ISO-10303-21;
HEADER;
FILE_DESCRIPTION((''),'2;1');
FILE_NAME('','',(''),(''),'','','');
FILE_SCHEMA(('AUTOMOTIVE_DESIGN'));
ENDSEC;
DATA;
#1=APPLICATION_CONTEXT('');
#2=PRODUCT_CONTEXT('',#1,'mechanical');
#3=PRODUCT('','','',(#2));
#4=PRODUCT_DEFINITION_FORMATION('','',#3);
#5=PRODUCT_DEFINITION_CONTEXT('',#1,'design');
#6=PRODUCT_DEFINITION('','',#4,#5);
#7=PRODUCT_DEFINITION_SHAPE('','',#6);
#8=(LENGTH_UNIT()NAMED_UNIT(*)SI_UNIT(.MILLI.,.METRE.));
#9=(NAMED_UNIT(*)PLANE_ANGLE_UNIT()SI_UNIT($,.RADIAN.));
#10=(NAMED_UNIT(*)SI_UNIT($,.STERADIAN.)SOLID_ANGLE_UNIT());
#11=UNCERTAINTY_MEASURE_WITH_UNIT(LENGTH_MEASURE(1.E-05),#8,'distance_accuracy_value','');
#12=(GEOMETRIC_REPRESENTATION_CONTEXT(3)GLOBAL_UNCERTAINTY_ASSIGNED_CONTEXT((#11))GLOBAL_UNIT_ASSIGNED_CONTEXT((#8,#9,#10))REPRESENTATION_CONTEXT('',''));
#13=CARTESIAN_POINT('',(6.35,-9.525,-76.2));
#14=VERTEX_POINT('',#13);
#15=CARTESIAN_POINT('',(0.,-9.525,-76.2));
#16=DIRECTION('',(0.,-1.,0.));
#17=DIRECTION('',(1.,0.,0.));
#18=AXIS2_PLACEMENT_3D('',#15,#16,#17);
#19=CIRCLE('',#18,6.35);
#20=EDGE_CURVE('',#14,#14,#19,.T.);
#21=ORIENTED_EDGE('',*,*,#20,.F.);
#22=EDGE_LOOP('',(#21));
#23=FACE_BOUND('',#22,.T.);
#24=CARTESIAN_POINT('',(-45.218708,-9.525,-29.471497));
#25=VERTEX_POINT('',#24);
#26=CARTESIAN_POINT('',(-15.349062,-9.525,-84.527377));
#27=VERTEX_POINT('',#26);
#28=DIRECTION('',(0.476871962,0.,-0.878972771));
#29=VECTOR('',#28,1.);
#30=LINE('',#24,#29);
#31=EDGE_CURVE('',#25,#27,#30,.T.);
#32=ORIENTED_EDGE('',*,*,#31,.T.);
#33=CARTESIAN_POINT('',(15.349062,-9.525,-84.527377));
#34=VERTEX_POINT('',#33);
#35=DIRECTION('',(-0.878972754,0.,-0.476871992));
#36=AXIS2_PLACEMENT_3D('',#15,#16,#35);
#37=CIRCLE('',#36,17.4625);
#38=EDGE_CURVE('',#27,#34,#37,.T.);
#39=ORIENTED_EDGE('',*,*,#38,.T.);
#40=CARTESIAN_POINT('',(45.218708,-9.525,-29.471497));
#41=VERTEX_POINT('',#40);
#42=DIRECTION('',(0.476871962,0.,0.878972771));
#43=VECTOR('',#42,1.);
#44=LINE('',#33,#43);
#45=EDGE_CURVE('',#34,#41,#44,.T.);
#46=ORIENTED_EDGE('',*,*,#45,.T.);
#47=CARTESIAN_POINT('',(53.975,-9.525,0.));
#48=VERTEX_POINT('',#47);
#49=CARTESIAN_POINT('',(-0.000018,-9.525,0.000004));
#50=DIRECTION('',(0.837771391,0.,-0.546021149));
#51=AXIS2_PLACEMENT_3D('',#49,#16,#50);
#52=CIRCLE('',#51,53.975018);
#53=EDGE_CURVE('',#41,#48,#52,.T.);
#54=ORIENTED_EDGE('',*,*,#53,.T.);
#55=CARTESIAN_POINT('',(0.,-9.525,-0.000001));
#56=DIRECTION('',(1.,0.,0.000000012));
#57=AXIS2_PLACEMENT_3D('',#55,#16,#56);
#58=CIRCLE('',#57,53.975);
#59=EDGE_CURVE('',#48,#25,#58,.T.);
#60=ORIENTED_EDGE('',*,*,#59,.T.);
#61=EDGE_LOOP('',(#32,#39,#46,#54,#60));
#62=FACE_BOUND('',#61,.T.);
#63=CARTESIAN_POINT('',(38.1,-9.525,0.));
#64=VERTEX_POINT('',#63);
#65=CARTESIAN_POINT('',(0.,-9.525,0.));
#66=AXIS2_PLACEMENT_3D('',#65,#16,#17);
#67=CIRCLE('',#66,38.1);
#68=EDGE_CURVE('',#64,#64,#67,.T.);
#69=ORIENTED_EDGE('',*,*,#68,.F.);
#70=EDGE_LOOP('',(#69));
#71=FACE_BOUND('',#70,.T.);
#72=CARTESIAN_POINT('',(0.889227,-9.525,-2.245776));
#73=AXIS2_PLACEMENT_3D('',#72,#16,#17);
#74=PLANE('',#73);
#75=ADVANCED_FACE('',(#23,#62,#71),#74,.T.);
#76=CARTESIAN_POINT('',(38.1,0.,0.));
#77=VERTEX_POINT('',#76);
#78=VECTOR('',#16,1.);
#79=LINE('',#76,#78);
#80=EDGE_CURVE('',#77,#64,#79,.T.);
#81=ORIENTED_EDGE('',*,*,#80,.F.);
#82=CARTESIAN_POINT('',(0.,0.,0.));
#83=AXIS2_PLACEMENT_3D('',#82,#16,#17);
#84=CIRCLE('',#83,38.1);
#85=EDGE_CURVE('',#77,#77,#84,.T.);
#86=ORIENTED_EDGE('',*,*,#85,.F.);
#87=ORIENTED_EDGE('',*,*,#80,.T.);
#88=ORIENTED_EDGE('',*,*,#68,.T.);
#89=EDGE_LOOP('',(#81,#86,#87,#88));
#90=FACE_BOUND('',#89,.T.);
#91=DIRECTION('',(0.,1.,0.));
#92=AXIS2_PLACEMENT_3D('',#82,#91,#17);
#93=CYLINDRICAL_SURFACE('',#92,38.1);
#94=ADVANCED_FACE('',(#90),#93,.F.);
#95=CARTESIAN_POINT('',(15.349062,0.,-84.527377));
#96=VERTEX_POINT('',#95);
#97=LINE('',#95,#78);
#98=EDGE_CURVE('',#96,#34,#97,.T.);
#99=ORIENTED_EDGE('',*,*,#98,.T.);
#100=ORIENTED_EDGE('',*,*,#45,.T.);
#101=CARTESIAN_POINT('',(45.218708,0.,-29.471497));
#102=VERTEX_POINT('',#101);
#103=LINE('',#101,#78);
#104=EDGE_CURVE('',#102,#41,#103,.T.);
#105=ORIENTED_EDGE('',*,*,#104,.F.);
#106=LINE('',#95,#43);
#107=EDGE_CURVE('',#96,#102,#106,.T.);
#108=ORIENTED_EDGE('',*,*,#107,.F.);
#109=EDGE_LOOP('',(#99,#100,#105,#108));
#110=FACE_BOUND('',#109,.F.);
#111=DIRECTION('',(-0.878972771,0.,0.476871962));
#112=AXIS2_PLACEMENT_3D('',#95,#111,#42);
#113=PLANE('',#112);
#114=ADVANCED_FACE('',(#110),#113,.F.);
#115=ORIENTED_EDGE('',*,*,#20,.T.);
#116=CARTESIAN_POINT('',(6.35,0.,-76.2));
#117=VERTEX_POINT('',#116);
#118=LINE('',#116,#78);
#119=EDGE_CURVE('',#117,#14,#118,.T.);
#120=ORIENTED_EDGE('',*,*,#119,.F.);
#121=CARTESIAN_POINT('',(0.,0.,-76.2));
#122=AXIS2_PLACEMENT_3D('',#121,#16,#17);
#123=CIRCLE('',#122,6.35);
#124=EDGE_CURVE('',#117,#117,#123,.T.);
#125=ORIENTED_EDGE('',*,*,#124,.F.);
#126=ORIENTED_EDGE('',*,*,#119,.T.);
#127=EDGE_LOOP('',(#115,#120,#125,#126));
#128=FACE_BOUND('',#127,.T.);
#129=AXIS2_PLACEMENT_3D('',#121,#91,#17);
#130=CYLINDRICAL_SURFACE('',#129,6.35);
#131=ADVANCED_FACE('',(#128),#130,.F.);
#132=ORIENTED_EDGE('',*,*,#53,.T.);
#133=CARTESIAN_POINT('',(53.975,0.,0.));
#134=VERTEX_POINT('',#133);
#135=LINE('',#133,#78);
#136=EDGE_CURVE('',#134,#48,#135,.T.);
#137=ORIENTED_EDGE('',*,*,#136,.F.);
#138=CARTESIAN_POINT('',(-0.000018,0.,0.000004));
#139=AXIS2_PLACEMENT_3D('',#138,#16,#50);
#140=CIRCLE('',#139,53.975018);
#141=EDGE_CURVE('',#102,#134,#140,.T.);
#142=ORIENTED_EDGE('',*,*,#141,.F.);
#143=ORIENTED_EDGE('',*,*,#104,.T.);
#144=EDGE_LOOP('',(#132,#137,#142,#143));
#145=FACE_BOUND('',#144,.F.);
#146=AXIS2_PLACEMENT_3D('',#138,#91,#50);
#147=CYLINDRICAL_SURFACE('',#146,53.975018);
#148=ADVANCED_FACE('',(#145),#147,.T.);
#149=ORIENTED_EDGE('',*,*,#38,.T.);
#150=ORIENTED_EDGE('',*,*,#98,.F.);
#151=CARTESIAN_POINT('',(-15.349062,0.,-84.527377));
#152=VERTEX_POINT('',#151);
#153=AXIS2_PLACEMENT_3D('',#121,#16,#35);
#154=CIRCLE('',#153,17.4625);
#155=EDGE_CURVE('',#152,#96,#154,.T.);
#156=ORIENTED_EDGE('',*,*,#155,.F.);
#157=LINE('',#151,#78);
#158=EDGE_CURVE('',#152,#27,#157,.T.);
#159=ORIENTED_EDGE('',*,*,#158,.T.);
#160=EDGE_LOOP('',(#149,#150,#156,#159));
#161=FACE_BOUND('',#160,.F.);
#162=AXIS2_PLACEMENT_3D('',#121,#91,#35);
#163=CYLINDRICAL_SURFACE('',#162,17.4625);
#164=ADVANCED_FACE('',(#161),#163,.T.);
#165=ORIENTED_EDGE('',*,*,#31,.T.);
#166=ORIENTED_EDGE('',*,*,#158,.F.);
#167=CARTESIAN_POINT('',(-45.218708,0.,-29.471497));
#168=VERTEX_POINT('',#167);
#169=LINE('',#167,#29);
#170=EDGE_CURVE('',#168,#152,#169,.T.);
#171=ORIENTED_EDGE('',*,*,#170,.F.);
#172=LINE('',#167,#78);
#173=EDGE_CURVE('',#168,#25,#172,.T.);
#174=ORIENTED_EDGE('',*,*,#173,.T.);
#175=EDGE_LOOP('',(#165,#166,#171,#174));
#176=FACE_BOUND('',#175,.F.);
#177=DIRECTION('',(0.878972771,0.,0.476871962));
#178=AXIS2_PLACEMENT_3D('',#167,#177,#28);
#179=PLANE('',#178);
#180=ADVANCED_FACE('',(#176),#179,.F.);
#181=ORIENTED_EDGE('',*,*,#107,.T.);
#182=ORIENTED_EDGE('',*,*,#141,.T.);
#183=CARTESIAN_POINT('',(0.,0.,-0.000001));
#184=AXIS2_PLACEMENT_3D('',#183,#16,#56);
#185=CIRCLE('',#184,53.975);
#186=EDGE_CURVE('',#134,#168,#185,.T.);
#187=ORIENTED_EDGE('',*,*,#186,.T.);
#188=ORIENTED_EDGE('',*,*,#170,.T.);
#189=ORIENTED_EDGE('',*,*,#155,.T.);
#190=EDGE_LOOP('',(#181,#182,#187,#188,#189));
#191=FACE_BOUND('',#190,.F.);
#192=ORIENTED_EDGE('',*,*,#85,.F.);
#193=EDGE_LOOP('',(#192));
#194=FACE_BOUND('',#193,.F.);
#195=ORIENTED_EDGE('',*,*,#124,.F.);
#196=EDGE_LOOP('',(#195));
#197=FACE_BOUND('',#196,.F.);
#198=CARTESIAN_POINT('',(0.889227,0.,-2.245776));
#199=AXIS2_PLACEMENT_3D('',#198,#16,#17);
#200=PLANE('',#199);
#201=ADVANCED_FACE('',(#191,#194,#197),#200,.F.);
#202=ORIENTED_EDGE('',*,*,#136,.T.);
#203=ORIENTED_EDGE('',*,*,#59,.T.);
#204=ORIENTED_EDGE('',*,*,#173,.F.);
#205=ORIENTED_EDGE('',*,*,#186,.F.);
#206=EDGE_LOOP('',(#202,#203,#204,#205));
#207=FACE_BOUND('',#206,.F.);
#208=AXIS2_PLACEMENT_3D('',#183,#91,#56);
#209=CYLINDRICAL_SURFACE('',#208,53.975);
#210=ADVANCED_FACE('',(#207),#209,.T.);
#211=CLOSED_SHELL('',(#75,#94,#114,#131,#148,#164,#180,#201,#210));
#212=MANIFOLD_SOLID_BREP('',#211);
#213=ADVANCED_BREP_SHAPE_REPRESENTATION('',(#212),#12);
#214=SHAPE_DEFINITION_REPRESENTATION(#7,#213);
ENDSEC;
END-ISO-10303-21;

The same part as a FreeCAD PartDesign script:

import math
import FreeCAD as App
import Part
import Sketcher

V = App.Vector
Q = App.Units.Quantity

doc = App.newDocument("Part")
params = doc.addObject("Spreadsheet::Sheet", "Params")
for row, (alias, value) in enumerate([
    ("sketch1_diameter", "3 in"),
    ("sketch1_diameter2", "0.5 in"),
    ("sketch1_radius", "2.125 in"),
    ("sketch1_radius2", "0.6875 in"),
    ("pad1_length", "0.375 in"),
], start=1):
    params.set(f"A{row}", alias)
    params.set(f"B{row}", "=" + value)
    params.setAlias(f"B{row}", alias)

body = doc.addObject("PartDesign::Body", "Body")

sketch1 = body.newObject("Sketcher::SketchObject", "Sketch")
sketch1.AttachmentSupport = (doc.getObject("XZ_Plane"), [""])
sketch1.MapMode = "FlatFace"
sketch1.addGeometry([
    Part.ArcOfCircle(Part.Circle(V(0, 0, 0), V(0, 0, 1), 54), math.radians(-33), math.radians(0)),
    Part.ArcOfCircle(Part.Circle(V(0, 0, 0), V(0, 0, 1), 54), math.radians(0), math.radians(213)),
    Part.LineSegment(V(-45, -29, 0), V(-15, -85, 0)),
    Part.ArcOfCircle(Part.Circle(V(0, -76, 0), V(0, 0, 1), 17), math.radians(-152), math.radians(-28)),
    Part.LineSegment(V(15, -85, 0), V(45, -29, 0)),
    Part.Circle(V(0, -76, 0), V(0, 0, 1), 6),
    Part.Circle(V(0, 0, 0), V(0, 0, 1), 38),
], False)
sketch1.addConstraint([
    Sketcher.Constraint("Tangent", 0, 2, 1, 1),
    Sketcher.Constraint("Coincident", 1, 2, 2, 1),
    Sketcher.Constraint("Tangent", 2, 2, 3, 1),
    Sketcher.Constraint("Tangent", 3, 2, 4, 1),
    Sketcher.Constraint("Coincident", 4, 2, 0, 1),
    Sketcher.Constraint("Coincident", 1, 3, -1, 1),
    Sketcher.Constraint("Coincident", 6, 3, -1, 1),
    Sketcher.Constraint("Coincident", 5, 3, 3, 3),
    Sketcher.Constraint("Symmetric", 2, 2, 3, 2, -2),
    Sketcher.Constraint("PointOnObject", 0, 2, -1),
    Sketcher.Constraint("Horizontal", 1, 2, 4, 2),
    Sketcher.Constraint("Diameter", 6, Q("3 in")),
    Sketcher.Constraint("Diameter", 5, Q("0.5 in")),
    Sketcher.Constraint("DistanceY", 3, 3, -1, 1, Q("3 in")),
    Sketcher.Constraint("Radius", 1, Q("2.125 in")),
    Sketcher.Constraint("Radius", 3, Q("0.6875 in")),
    Sketcher.Constraint("DistanceY", 1, 2, 0, 3, 29.471501),
])
sketch1.setExpression("Constraints[11]", "Params.sketch1_diameter")
sketch1.setExpression("Constraints[12]", "Params.sketch1_diameter2")
sketch1.setExpression("Constraints[14]", "Params.sketch1_radius")
sketch1.setExpression("Constraints[15]", "Params.sketch1_radius2")
pad1 = body.newObject("PartDesign::Pad", "Pad")
pad1.Profile = sketch1
pad1.setExpression("Length", "Params.pad1_length")

doc.recompute()
